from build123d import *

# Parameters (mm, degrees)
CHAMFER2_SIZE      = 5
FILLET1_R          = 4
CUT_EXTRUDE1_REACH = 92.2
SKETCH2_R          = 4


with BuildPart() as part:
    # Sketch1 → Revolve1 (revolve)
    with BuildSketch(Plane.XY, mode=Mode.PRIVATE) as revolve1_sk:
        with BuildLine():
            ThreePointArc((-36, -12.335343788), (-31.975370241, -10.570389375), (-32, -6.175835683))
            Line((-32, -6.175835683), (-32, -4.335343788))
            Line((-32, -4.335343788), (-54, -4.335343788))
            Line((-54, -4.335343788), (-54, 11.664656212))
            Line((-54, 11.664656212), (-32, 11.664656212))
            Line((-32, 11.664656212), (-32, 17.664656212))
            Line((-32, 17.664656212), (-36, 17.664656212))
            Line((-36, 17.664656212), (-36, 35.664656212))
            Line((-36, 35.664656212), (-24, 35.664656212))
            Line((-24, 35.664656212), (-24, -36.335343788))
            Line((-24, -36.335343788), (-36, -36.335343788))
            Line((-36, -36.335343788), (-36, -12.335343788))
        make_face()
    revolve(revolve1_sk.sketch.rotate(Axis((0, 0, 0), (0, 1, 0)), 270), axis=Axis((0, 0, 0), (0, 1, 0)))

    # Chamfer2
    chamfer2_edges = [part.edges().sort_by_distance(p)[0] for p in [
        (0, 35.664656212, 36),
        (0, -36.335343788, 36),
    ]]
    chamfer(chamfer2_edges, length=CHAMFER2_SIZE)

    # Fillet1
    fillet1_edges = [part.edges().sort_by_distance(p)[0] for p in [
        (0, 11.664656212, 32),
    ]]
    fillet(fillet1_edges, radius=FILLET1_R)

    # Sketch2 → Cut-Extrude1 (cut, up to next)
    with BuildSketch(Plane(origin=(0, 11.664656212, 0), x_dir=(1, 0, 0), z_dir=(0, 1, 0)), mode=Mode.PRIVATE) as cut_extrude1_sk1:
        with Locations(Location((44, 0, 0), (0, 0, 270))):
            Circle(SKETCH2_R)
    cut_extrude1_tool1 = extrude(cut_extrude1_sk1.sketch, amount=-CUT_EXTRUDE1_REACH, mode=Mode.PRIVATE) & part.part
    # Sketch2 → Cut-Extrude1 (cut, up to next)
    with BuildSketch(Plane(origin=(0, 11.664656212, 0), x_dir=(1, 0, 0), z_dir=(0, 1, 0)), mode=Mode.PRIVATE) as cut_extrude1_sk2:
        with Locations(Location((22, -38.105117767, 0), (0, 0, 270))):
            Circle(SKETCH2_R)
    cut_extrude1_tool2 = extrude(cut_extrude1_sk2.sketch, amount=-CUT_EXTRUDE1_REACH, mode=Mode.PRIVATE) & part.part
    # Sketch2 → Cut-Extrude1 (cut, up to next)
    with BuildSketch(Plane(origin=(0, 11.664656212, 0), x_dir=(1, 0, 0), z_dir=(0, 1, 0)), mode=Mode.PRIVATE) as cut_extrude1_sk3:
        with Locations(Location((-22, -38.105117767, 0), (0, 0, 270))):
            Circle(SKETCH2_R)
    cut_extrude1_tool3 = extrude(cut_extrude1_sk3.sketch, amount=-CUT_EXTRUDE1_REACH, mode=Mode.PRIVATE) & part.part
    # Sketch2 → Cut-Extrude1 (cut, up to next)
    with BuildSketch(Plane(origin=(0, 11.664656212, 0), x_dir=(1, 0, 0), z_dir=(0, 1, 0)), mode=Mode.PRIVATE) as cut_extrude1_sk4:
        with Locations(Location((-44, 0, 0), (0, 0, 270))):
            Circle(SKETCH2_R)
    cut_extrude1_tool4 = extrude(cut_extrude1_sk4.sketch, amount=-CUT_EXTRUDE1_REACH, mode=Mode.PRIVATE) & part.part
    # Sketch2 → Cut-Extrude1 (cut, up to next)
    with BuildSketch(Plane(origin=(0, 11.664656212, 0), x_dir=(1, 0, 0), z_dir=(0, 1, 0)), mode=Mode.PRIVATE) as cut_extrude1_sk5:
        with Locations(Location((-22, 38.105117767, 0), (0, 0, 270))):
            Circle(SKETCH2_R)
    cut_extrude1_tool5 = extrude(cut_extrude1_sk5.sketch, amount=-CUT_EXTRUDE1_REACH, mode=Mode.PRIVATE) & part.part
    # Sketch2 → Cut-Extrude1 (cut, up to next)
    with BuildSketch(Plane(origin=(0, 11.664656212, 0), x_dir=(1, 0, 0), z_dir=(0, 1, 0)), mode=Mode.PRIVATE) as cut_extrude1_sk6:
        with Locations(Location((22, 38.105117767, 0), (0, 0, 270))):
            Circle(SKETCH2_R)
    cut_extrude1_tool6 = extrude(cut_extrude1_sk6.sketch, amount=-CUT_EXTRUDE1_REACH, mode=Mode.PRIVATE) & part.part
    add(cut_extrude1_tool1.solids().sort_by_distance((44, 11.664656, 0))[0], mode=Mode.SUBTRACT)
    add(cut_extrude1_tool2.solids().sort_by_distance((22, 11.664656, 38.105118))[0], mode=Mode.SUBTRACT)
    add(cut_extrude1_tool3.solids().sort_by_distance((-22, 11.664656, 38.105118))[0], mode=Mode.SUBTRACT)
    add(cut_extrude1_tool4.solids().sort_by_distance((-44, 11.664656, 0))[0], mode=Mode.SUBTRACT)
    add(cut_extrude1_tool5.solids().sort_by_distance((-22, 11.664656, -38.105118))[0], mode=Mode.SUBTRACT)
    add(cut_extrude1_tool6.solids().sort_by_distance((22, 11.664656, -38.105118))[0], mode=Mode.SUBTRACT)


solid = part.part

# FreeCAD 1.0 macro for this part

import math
import FreeCAD as App
import Part
import Sketcher

V = App.Vector
Q = App.Units.Quantity


def edges_at(feature, points):
    """Names of the edges that pass closest to the given points."""
    edges = feature.Shape.Edges
    near = lambda p: min(range(len(edges)), key=lambda i: edges[i].distToShape(Part.Vertex(*p))[0])
    return sorted({f"Edge{near(p) + 1}" for p in points})

doc = App.newDocument("Part")
params = doc.addObject("Spreadsheet::Sheet", "Params")
for row, (alias, value) in enumerate([
    ("sketch1_radius", "4 mm"),
    ("sketch1_width", "12 mm"),
    ("sketch1_width2", "4 mm"),
    ("sketch1_width3", "22 mm"),
    ("sketch1_height", "24 mm"),
    ("revolution_angle", "360 deg"),
    ("chamfer_size", "5 mm"),
    ("fillet_radius", "4 mm"),
    ("sketch2_diameter", "8 mm"),
    ("sketch3_diameter", "8 mm"),
    ("sketch4_diameter", "8 mm"),
    ("sketch5_diameter", "8 mm"),
    ("sketch6_diameter", "8 mm"),
    ("sketch7_diameter", "8 mm"),
], start=1):
    params.set(f"A{row}", alias)
    params.set(f"B{row}", "=" + value)
    params.setAlias(f"B{row}", alias)

body = doc.addObject("PartDesign::Body", "Body")

# Sketch on XY plane
sketch1 = body.newObject("Sketcher::SketchObject", "Sketch")
sketch1.AttachmentSupport = (doc.getObject("XY_Plane"), [""])
sketch1.MapMode = "FlatFace"
sketch1.addGeometry(Part.ArcOfCircle(Part.Circle(V(-35.3, -8.4, 0), V(0, 0, 1), 4), math.radians(-100), math.radians(34)), False)
sketch1.addGeometry(Part.LineSegment(V(-36, -12.3, 0), V(-36, -36.3, 0)), False)
sketch1.addGeometry(Part.LineSegment(V(-36, -36.3, 0), V(-24, -36.3, 0)), False)
sketch1.addGeometry(Part.LineSegment(V(-24, -36.3, 0), V(-24, 35.7, 0)), False)
sketch1.addGeometry(Part.LineSegment(V(-24, 35.7, 0), V(-36, 35.7, 0)), False)
sketch1.addGeometry(Part.LineSegment(V(-36, 35.7, 0), V(-36, 17.7, 0)), False)
sketch1.addGeometry(Part.LineSegment(V(-36, 17.7, 0), V(-32, 17.7, 0)), False)
sketch1.addGeometry(Part.LineSegment(V(-32, 17.7, 0), V(-32, 11.7, 0)), False)
sketch1.addGeometry(Part.LineSegment(V(-32, 11.7, 0), V(-54, 11.7, 0)), False)
sketch1.addGeometry(Part.LineSegment(V(-54, 11.7, 0), V(-54, -4.3, 0)), False)
sketch1.addGeometry(Part.LineSegment(V(-54, -4.3, 0), V(-32, -4.3, 0)), False)
sketch1.addGeometry(Part.LineSegment(V(-32, -4.3, 0), V(-32, -6.2, 0)), False)
sketch1.addConstraint(Sketcher.Constraint("Coincident", 0, 1, 1, 1))
sketch1.addConstraint(Sketcher.Constraint("Coincident", 1, 2, 2, 1))
sketch1.addConstraint(Sketcher.Constraint("Coincident", 2, 2, 3, 1))
sketch1.addConstraint(Sketcher.Constraint("Coincident", 3, 2, 4, 1))
sketch1.addConstraint(Sketcher.Constraint("Coincident", 4, 2, 5, 1))
sketch1.addConstraint(Sketcher.Constraint("Coincident", 5, 2, 6, 1))
sketch1.addConstraint(Sketcher.Constraint("Coincident", 6, 2, 7, 1))
sketch1.addConstraint(Sketcher.Constraint("Coincident", 7, 2, 8, 1))
sketch1.addConstraint(Sketcher.Constraint("Coincident", 8, 2, 9, 1))
sketch1.addConstraint(Sketcher.Constraint("Coincident", 9, 2, 10, 1))
sketch1.addConstraint(Sketcher.Constraint("Coincident", 10, 2, 11, 1))
sketch1.addConstraint(Sketcher.Constraint("Coincident", 11, 2, 0, 2))
sketch1.addConstraint(Sketcher.Constraint("Vertical", 1))
sketch1.addConstraint(Sketcher.Constraint("Horizontal", 2))
sketch1.addConstraint(Sketcher.Constraint("Vertical", 3))
sketch1.addConstraint(Sketcher.Constraint("Horizontal", 4))
sketch1.addConstraint(Sketcher.Constraint("Vertical", 5))
sketch1.addConstraint(Sketcher.Constraint("Horizontal", 6))
sketch1.addConstraint(Sketcher.Constraint("Vertical", 7))
sketch1.addConstraint(Sketcher.Constraint("Horizontal", 8))
sketch1.addConstraint(Sketcher.Constraint("Vertical", 9))
sketch1.addConstraint(Sketcher.Constraint("Horizontal", 10))
sketch1.addConstraint(Sketcher.Constraint("Vertical", 11))
sketch1.addConstraint(Sketcher.Constraint("Vertical", 1, 2, 4, 2))
sketch1.addConstraint(Sketcher.Constraint("Vertical", 7, 2, 10, 2))
sketch1.addConstraint(Sketcher.Constraint("Radius", 0, Q("4 mm")))
sketch1.addConstraint(Sketcher.Constraint("DistanceX", 2, 1, 2, 2, Q("12 mm")))
sketch1.addConstraint(Sketcher.Constraint("DistanceX", 6, 1, 6, 2, Q("4 mm")))
sketch1.addConstraint(Sketcher.Constraint("DistanceX", 8, 2, 8, 1, Q("22 mm")))
sketch1.addConstraint(Sketcher.Constraint("DistanceY", 1, 2, 1, 1, Q("24 mm")))
sketch1.addConstraint(Sketcher.Constraint("DistanceY", 3, 1, 3, 2, Q("72 mm")))
sketch1.addConstraint(Sketcher.Constraint("DistanceY", 5, 2, 5, 1, Q("18 mm")))
sketch1.addConstraint(Sketcher.Constraint("DistanceY", 7, 2, 7, 1, Q("6 mm")))
sketch1.addConstraint(Sketcher.Constraint("DistanceY", 9, 2, 9, 1, Q("16 mm")))
sketch1.addConstraint(Sketcher.Constraint("DistanceX", 0, 1, -1, 1, Q("36 mm")))
sketch1.addConstraint(Sketcher.Constraint("DistanceY", 11, 2, 11, 1, Q("1.840492 mm")))
sketch1.addConstraint(Sketcher.Constraint("DistanceY", 0, 3, -1, 1, Q("8.391845 mm")))
sketch1.setExpression("Constraints[25]", "Params.sketch1_radius")
sketch1.setExpression("Constraints[26]", "Params.sketch1_width")
sketch1.setExpression("Constraints[27]", "Params.sketch1_width2")
sketch1.setExpression("Constraints[28]", "Params.sketch1_width3")
sketch1.setExpression("Constraints[29]", "Params.sketch1_height")
revolution = body.newObject("PartDesign::Revolution", "Revolution")
revolution.Profile = sketch1
revolution.ReferenceAxis = (sketch1, ["V_Axis"])
revolution.setExpression("Angle", "Params.revolution_angle")
doc.recompute()

chamfer = body.newObject("PartDesign::Chamfer", "Chamfer")
chamfer.Base = (revolution, edges_at(revolution, [(0, 35.665, 36), (0, -36.335, 36)]))
chamfer.setExpression("Size", "Params.chamfer_size")
doc.recompute()

fillet = body.newObject("PartDesign::Fillet", "Fillet")
fillet.Base = (chamfer, edges_at(chamfer, [(0, 11.665, 32)]))
fillet.setExpression("Radius", "Params.fillet_radius")

# Sketch on XZ plane
sketch2 = body.newObject("Sketcher::SketchObject", "Sketch001")
sketch2.AttachmentSupport = (doc.getObject("XZ_Plane"), [""])
sketch2.MapMode = "FlatFace"
sketch2.AttachmentOffset = App.Placement(V(0, 0, -11.664656), App.Rotation())
sketch2.addGeometry(Part.Circle(V(44, 0, 0), V(0, 0, 1), 4), False)
sketch2.addConstraint(Sketcher.Constraint("PointOnObject", 0, 3, -1))
sketch2.addConstraint(Sketcher.Constraint("Diameter", 0, Q("8 mm")))
sketch2.addConstraint(Sketcher.Constraint("DistanceX", -1, 1, 0, 3, Q("44 mm")))
sketch2.setExpression("Constraints[1]", "Params.sketch2_diameter")
pocket1 = body.newObject("PartDesign::Pocket", "Pocket")
pocket1.Profile = sketch2
pocket1.Type = "UpToFirst"
pocket1.Reversed = True

# Sketch on XZ plane
sketch3 = body.newObject("Sketcher::SketchObject", "Sketch002")
sketch3.AttachmentSupport = (doc.getObject("XZ_Plane"), [""])
sketch3.MapMode = "FlatFace"
sketch3.AttachmentOffset = App.Placement(V(0, 0, -11.664656), App.Rotation())
sketch3.addGeometry(Part.Circle(V(22, 38.1, 0), V(0, 0, 1), 4), False)
sketch3.addConstraint(Sketcher.Constraint("Diameter", 0, Q("8 mm")))
sketch3.addConstraint(Sketcher.Constraint("DistanceX", -1, 1, 0, 3, Q("22 mm")))
sketch3.addConstraint(Sketcher.Constraint("DistanceY", -1, 1, 0, 3, Q("38.105118 mm")))
sketch3.setExpression("Constraints[0]", "Params.sketch3_diameter")
pocket2 = body.newObject("PartDesign::Pocket", "Pocket001")
pocket2.Profile = sketch3
pocket2.Type = "UpToFirst"
pocket2.Reversed = True

# Sketch on XZ plane
sketch4 = body.newObject("Sketcher::SketchObject", "Sketch003")
sketch4.AttachmentSupport = (doc.getObject("XZ_Plane"), [""])
sketch4.MapMode = "FlatFace"
sketch4.AttachmentOffset = App.Placement(V(0, 0, -11.664656), App.Rotation())
sketch4.addGeometry(Part.Circle(V(-22, 38.1, 0), V(0, 0, 1), 4), False)
sketch4.addConstraint(Sketcher.Constraint("Diameter", 0, Q("8 mm")))
sketch4.addConstraint(Sketcher.Constraint("DistanceX", 0, 3, -1, 1, Q("22 mm")))
sketch4.addConstraint(Sketcher.Constraint("DistanceY", -1, 1, 0, 3, Q("38.105118 mm")))
sketch4.setExpression("Constraints[0]", "Params.sketch4_diameter")
pocket3 = body.newObject("PartDesign::Pocket", "Pocket002")
pocket3.Profile = sketch4
pocket3.Type = "UpToFirst"
pocket3.Reversed = True

# Sketch on XZ plane
sketch5 = body.newObject("Sketcher::SketchObject", "Sketch004")
sketch5.AttachmentSupport = (doc.getObject("XZ_Plane"), [""])
sketch5.MapMode = "FlatFace"
sketch5.AttachmentOffset = App.Placement(V(0, 0, -11.664656), App.Rotation())
sketch5.addGeometry(Part.Circle(V(-44, 0, 0), V(0, 0, 1), 4), False)
sketch5.addConstraint(Sketcher.Constraint("PointOnObject", 0, 3, -1))
sketch5.addConstraint(Sketcher.Constraint("Diameter", 0, Q("8 mm")))
sketch5.addConstraint(Sketcher.Constraint("DistanceX", 0, 3, -1, 1, Q("44 mm")))
sketch5.setExpression("Constraints[1]", "Params.sketch5_diameter")
pocket4 = body.newObject("PartDesign::Pocket", "Pocket003")
pocket4.Profile = sketch5
pocket4.Type = "UpToFirst"
pocket4.Reversed = True

# Sketch on XZ plane
sketch6 = body.newObject("Sketcher::SketchObject", "Sketch005")
sketch6.AttachmentSupport = (doc.getObject("XZ_Plane"), [""])
sketch6.MapMode = "FlatFace"
sketch6.AttachmentOffset = App.Placement(V(0, 0, -11.664656), App.Rotation())
sketch6.addGeometry(Part.Circle(V(-22, -38.1, 0), V(0, 0, 1), 4), False)
sketch6.addConstraint(Sketcher.Constraint("Diameter", 0, Q("8 mm")))
sketch6.addConstraint(Sketcher.Constraint("DistanceX", 0, 3, -1, 1, Q("22 mm")))
sketch6.addConstraint(Sketcher.Constraint("DistanceY", 0, 3, -1, 1, Q("38.105118 mm")))
sketch6.setExpression("Constraints[0]", "Params.sketch6_diameter")
pocket5 = body.newObject("PartDesign::Pocket", "Pocket004")
pocket5.Profile = sketch6
pocket5.Type = "UpToFirst"
pocket5.Reversed = True

# Sketch on XZ plane
sketch7 = body.newObject("Sketcher::SketchObject", "Sketch006")
sketch7.AttachmentSupport = (doc.getObject("XZ_Plane"), [""])
sketch7.MapMode = "FlatFace"
sketch7.AttachmentOffset = App.Placement(V(0, 0, -11.664656), App.Rotation())
sketch7.addGeometry(Part.Circle(V(22, -38.1, 0), V(0, 0, 1), 4), False)
sketch7.addConstraint(Sketcher.Constraint("Diameter", 0, Q("8 mm")))
sketch7.addConstraint(Sketcher.Constraint("DistanceX", -1, 1, 0, 3, Q("22 mm")))
sketch7.addConstraint(Sketcher.Constraint("DistanceY", 0, 3, -1, 1, Q("38.105118 mm")))
sketch7.setExpression("Constraints[0]", "Params.sketch7_diameter")
pocket6 = body.newObject("PartDesign::Pocket", "Pocket005")
pocket6.Profile = sketch7
pocket6.Type = "UpToFirst"
pocket6.Reversed = True

doc.recompute()
